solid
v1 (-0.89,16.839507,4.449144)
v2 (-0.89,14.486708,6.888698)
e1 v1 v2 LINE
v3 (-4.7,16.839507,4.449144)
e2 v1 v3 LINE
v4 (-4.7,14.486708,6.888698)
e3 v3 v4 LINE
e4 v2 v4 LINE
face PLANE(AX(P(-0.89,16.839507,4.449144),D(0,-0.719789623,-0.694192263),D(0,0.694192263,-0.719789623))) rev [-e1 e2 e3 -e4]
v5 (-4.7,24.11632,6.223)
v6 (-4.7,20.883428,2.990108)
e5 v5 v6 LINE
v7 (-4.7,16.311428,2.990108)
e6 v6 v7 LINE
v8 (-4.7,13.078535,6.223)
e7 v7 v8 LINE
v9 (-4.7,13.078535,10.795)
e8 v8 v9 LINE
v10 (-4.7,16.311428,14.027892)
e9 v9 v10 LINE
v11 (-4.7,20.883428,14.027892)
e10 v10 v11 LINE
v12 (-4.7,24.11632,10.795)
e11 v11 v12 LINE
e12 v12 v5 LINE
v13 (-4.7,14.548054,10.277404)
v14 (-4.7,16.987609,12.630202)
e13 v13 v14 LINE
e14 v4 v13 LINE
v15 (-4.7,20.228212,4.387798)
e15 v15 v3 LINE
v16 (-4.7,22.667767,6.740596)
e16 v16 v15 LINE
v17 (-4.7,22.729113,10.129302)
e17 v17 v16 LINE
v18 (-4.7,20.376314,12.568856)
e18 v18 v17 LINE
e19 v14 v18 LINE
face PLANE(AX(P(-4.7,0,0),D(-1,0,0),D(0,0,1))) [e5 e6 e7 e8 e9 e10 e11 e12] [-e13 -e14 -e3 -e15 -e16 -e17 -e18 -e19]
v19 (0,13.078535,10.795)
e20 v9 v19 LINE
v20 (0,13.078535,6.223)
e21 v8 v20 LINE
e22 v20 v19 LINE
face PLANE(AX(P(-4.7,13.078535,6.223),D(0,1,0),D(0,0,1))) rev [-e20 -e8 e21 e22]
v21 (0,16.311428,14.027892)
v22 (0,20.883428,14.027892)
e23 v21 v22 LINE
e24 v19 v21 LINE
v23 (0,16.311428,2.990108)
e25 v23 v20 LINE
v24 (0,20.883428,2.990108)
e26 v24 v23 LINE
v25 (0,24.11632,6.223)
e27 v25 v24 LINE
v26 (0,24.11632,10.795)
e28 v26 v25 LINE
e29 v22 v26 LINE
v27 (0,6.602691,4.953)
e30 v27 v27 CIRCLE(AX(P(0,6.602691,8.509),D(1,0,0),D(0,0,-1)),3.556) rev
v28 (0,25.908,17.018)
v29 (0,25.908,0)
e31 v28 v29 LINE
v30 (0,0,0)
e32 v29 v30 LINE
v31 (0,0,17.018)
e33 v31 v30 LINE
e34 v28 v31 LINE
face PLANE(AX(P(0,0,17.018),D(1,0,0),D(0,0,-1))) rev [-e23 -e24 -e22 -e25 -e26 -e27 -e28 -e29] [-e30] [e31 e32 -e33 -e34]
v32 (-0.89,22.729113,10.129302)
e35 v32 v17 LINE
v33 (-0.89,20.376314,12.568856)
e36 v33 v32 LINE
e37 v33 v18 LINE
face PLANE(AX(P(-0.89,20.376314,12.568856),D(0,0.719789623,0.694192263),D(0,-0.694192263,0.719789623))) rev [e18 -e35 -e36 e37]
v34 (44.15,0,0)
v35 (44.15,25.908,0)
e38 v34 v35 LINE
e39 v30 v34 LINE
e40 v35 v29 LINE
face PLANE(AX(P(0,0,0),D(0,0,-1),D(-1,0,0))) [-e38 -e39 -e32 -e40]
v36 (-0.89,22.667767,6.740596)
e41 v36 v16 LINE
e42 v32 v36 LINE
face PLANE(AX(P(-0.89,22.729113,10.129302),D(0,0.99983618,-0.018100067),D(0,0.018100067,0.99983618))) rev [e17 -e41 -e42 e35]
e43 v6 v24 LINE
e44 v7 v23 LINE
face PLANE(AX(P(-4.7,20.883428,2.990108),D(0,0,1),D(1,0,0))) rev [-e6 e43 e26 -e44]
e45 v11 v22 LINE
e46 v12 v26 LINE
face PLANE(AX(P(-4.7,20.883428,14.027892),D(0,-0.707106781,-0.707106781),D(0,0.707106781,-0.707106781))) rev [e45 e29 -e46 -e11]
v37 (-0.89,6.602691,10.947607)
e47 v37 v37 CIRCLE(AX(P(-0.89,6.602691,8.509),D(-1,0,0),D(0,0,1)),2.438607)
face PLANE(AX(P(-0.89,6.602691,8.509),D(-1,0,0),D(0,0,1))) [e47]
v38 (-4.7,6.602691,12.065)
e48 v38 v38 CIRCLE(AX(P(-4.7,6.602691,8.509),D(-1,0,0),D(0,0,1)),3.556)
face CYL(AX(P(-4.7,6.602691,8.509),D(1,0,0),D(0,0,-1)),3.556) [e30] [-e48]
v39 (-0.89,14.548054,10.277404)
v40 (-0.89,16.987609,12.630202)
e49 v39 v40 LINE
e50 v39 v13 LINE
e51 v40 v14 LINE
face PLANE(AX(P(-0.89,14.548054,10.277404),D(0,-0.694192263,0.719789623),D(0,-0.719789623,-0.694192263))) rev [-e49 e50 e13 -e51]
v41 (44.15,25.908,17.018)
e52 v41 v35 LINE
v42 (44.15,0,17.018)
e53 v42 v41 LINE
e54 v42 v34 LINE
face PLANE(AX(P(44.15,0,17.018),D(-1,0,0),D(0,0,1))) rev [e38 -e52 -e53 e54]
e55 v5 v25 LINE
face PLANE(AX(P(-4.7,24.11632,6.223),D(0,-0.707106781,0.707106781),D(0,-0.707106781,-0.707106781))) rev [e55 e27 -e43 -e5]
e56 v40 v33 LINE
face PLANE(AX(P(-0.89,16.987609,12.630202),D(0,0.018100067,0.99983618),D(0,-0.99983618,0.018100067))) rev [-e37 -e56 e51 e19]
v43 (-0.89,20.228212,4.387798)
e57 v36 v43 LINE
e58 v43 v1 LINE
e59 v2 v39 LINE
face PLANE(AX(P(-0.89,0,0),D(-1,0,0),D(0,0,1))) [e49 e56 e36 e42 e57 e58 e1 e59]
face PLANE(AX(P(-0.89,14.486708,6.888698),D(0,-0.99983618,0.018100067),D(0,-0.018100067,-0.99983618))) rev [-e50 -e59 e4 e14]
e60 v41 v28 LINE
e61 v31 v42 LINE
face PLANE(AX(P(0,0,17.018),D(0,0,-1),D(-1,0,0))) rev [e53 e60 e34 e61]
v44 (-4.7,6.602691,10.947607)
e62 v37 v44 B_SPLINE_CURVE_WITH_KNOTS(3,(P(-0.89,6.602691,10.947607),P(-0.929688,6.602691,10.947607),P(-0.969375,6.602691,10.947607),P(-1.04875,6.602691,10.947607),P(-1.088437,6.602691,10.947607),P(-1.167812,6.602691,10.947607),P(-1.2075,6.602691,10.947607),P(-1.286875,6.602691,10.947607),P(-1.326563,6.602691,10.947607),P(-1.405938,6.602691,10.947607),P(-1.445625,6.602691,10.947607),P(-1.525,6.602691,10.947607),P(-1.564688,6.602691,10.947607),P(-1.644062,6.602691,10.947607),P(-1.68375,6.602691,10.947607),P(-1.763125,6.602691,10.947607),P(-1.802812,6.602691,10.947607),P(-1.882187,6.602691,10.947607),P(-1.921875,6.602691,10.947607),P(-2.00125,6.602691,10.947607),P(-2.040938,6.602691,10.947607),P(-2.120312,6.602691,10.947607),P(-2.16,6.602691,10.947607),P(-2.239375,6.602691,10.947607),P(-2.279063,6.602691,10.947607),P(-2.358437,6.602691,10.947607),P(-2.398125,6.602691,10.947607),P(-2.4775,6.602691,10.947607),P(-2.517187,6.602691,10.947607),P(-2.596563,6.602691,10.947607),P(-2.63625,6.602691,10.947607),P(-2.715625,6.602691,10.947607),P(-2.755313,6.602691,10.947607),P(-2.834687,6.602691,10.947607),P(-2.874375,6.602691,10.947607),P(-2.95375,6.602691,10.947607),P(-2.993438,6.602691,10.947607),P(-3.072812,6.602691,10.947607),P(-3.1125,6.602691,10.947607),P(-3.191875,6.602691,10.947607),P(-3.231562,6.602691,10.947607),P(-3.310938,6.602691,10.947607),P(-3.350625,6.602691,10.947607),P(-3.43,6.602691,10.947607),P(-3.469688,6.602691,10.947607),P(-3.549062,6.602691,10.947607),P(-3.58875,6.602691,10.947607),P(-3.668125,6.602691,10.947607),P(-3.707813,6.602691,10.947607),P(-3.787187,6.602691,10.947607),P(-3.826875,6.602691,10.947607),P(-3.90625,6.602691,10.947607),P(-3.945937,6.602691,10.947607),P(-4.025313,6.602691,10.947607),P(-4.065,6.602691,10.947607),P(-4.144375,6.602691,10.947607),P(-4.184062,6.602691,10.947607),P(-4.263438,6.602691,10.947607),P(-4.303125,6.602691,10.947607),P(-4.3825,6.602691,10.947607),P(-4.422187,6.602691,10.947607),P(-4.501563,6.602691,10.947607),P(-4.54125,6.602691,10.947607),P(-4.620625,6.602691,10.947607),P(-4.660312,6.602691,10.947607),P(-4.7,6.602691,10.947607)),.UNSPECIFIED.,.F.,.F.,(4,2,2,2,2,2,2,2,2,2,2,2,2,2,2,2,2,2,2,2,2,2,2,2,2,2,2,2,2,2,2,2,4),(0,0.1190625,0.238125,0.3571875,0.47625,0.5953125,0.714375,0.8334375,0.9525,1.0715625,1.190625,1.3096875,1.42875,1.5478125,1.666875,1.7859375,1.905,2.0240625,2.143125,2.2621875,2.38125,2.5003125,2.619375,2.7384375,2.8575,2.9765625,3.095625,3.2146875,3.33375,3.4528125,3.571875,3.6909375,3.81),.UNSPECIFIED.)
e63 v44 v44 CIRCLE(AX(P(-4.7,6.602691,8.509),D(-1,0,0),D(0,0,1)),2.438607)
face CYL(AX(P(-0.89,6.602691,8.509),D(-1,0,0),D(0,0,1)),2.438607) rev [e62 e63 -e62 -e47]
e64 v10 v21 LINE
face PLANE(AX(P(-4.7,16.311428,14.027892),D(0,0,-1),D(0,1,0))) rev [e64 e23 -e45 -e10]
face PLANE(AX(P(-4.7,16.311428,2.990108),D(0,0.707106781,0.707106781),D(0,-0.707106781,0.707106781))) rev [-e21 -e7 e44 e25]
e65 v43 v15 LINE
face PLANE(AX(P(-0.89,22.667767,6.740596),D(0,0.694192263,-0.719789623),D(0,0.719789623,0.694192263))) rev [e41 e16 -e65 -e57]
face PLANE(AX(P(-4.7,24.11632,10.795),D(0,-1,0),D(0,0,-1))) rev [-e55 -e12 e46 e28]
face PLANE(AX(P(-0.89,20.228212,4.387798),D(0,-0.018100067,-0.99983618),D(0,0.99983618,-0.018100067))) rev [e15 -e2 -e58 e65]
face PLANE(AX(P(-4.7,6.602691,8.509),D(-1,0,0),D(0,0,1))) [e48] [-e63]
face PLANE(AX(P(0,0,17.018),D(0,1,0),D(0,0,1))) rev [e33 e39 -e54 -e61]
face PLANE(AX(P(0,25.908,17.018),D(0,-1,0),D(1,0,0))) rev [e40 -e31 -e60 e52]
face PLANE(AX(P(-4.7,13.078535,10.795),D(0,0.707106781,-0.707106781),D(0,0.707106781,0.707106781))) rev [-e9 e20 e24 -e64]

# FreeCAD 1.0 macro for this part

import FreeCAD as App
import Part
import Sketcher
from FreeCAD import Vector
Q = App.Units.Quantity


def add_polygon(sketch, points):
    """Adds a closed chain of lines whose ends are joined by coincident constraints."""
    first, n = sketch.GeometryCount, len(points)
    for a, b in zip(points, points[1:] + points[:1]):
        sketch.addGeometry(Part.LineSegment(App.Vector(*a, 0), App.Vector(*b, 0)), False)
    for i in range(n):
        sketch.addConstraint(Sketcher.Constraint("Coincident", first + i, 2, first + (i + 1) % n, 1))

doc = App.newDocument("Part")
body = doc.addObject("PartDesign::Body", "Body")

# Sketch on XY plane
sketch1 = doc.addObject("Sketcher::SketchObject", "Sketch")
body.addObject(sketch1)
sketch1.AttachmentSupport = (doc.XY_Plane, [""])
sketch1.MapMode = "FlatFace"
add_polygon(sketch1, [(0, 26), (0, 0), (44, 0), (44, 26)])  # lines 0-3
sketch1.addConstraint(Sketcher.Constraint("Vertical", 0))
sketch1.addConstraint(Sketcher.Constraint("Horizontal", 1))
sketch1.addConstraint(Sketcher.Constraint("Vertical", 2))
sketch1.addConstraint(Sketcher.Constraint("Horizontal", 3))
sketch1.addConstraint(Sketcher.Constraint("Coincident", 0, 2, -1, 1))
sketch1.addConstraint(Sketcher.Constraint("DistanceY", 0, 2, 0, 1, Q("1.02 in")))
sketch1.addConstraint(Sketcher.Constraint("DistanceX", 1, 1, 1, 2, 44.15))
pad1 = doc.addObject("PartDesign::Pad", "Pad")
body.addObject(pad1)
pad1.Profile = sketch1
pad1.Length = Q("0.67 in")

# Sketch on YZ plane
sketch2 = doc.addObject("Sketcher::SketchObject", "Sketch001")
body.addObject(sketch2)
sketch2.AttachmentSupport = (doc.YZ_Plane, [""])
sketch2.MapMode = "FlatFace"
sketch2.addGeometry(Part.Circle(Vector(6.6, 8.5, 0), Vector(0, 0, 1), 3.6), False)  # 0
add_polygon(sketch2, [(20.9, 14), (24.1, 10.8), (24.1, 6.2), (20.9, 3), (16.3, 3), (13.1, 6.2), (13.1, 10.8), (16.3, 14)])  # lines 1-8
sketch2.addConstraint(Sketcher.Constraint("Vertical", 2))
sketch2.addConstraint(Sketcher.Constraint("Horizontal", 4))
sketch2.addConstraint(Sketcher.Constraint("Vertical", 6))
sketch2.addConstraint(Sketcher.Constraint("Horizontal", 8))
sketch2.addConstraint(Sketcher.Constraint("Perpendicular", 1, 3))
sketch2.addConstraint(Sketcher.Constraint("Perpendicular", 3, 5))
sketch2.addConstraint(Sketcher.Constraint("Perpendicular", 5, 7))
sketch2.addConstraint(Sketcher.Constraint("Horizontal", 2, 2, 5, 2))
sketch2.addConstraint(Sketcher.Constraint("Horizontal", 1, 2, 6, 2))
sketch2.addConstraint(Sketcher.Constraint("Vertical", 4, 2, 7, 2))
sketch2.addConstraint(Sketcher.Constraint("Vertical", 3, 2, 8, 2))
sketch2.addConstraint(Sketcher.Constraint("Equal", 8, 2))
sketch2.addConstraint(Sketcher.Constraint("Diameter", 0, Q("0.28 in")))
sketch2.addConstraint(Sketcher.Constraint("DistanceX", 4, 2, 4, 1, Q("0.18 in")))
sketch2.addConstraint(Sketcher.Constraint("Distance", 1, Q("0.18 in")))
sketch2.addConstraint(Sketcher.Constraint("DistanceY", 0, 3, 1, 2, Q("0.09 in")))
sketch2.addConstraint(Sketcher.Constraint("DistanceY", -1, 1, 0, 3, Q("0.335 in")))
sketch2.addConstraint(Sketcher.Constraint("DistanceX", -1, 1, 0, 3, 6.602691))
sketch2.addConstraint(Sketcher.Constraint("DistanceX", -1, 1, 1, 2, 24.11632))
pad2 = doc.addObject("PartDesign::Pad", "Pad001")
body.addObject(pad2)
pad2.Profile = sketch2
pad2.Length = 4.7
pad2.Reversed = True

# Sketch on YZ plane
sketch3 = doc.addObject("Sketcher::SketchObject", "Sketch002")
body.addObject(sketch3)
sketch3.AttachmentSupport = (doc.YZ_Plane, [""])
sketch3.MapMode = "FlatFace"
sketch3.AttachmentOffset = App.Placement(Vector(0, 0, -4.7), App.Rotation())
sketch3.addGeometry(Part.Circle(Vector(6.6, 8.5, 0), Vector(0, 0, 1), 2.4), False)  # 0
add_polygon(sketch3, [(20.4, 12.6), (22.7, 10.1), (22.7, 6.7), (20.2, 4.4), (16.8, 4.4), (14.5, 6.9), (14.5, 10.3), (17, 12.6)])  # lines 1-8
sketch3.addConstraint(Sketcher.Constraint("Perpendicular", 1, 3))
sketch3.addConstraint(Sketcher.Constraint("Perpendicular", 2, 4))
sketch3.addConstraint(Sketcher.Constraint("Perpendicular", 3, 5))
sketch3.addConstraint(Sketcher.Constraint("Perpendicular", 4, 6))
sketch3.addConstraint(Sketcher.Constraint("Perpendicular", 5, 7))
sketch3.addConstraint(Sketcher.Constraint("Perpendicular", 6, 8))
sketch3.addConstraint(Sketcher.Constraint("Equal", 1, 2))
sketch3.addConstraint(Sketcher.Constraint("Equal", 2, 3))
sketch3.addConstraint(Sketcher.Constraint("Equal", 3, 4))
sketch3.addConstraint(Sketcher.Constraint("Equal", 4, 5))
sketch3.addConstraint(Sketcher.Constraint("Equal", 5, 6))
sketch3.addConstraint(Sketcher.Constraint("DistanceY", -1, 1, 0, 3, Q("0.335 in")))
sketch3.addConstraint(Sketcher.Constraint("Diameter", 0, 4.877214))
sketch3.addConstraint(Sketcher.Constraint("DistanceY", -1, 1, 1, 2, 10.129302))
sketch3.addConstraint(Sketcher.Constraint("DistanceY", -1, 1, 5, 2, 6.888698))
sketch3.addConstraint(Sketcher.Constraint("DistanceY", 3, 2, 2, 2, 2.352799))
sketch3.addConstraint(Sketcher.Constraint("DistanceX", 3, 2, 1, 2, 2.500901))
sketch3.addConstraint(Sketcher.Constraint("DistanceX", -1, 1, 0, 3, 6.602691))
sketch3.addConstraint(Sketcher.Constraint("DistanceX", -1, 1, 5, 2, 14.486708))
pocket1 = doc.addObject("PartDesign::Pocket", "Pocket")
body.addObject(pocket1)
pocket1.Profile = sketch3
pocket1.Length = Q("0.15 in")
pocket1.Reversed = True

doc.recompute()
